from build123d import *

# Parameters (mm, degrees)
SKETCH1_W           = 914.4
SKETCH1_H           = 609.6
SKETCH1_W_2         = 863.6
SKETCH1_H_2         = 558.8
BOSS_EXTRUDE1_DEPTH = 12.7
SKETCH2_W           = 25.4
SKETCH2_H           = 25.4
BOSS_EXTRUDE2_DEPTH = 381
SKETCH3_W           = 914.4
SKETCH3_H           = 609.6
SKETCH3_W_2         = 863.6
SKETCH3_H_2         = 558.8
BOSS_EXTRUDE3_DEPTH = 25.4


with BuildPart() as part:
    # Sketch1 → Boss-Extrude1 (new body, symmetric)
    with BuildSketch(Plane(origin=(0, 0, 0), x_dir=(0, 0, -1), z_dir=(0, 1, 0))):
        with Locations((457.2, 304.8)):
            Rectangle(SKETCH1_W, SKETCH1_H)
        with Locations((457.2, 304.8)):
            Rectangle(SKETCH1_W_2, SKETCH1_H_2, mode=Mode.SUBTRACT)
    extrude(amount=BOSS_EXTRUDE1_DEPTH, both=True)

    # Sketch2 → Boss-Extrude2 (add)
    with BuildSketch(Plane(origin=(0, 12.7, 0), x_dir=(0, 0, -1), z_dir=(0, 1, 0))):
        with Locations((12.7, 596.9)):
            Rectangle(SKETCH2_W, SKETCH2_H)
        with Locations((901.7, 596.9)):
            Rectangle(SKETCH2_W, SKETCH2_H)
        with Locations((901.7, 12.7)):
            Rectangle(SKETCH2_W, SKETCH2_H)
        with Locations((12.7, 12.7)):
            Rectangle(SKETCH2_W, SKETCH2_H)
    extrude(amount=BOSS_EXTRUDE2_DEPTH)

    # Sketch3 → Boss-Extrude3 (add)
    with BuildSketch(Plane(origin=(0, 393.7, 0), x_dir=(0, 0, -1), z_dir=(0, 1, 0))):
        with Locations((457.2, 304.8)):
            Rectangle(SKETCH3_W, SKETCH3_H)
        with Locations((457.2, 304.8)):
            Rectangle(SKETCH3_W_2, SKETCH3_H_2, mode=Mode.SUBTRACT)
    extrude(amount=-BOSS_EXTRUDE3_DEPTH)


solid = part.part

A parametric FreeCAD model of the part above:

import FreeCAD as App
import Part
import Sketcher

V = App.Vector
Q = App.Units.Quantity

doc = App.newDocument("Part")
params = doc.addObject("Spreadsheet::Sheet", "Params")
for row, (alias, value) in enumerate([
    ("sketch1_width", "24 in"),
    ("sketch1_width2", "22 in"),
    ("sketch1_height", "36 in"),
    ("sketch1_height2", "34 in"),
    ("pad1_length", "1 in"),
    ("sketch2_width", "1 in"),
    ("pad2_length", "15 in"),
    ("sketch3_width", "24 in"),
    ("sketch3_width2", "22 in"),
    ("sketch3_height", "36 in"),
    ("sketch3_height2", "34 in"),
    ("pad3_length", "1 in"),
], start=1):
    params.set(f"A{row}", alias)
    params.set(f"B{row}", "=" + value)
    params.setAlias(f"B{row}", alias)

body = doc.addObject("PartDesign::Body", "Body")

sketch1 = body.newObject("Sketcher::SketchObject", "Sketch")
sketch1.AttachmentSupport = (doc.getObject("XZ_Plane"), [""])
sketch1.MapMode = "FlatFace"
sketch1.addGeometry(Part.LineSegment(V(-610, 0, 0), V(0, 0, 0)), False)
sketch1.addGeometry(Part.LineSegment(V(0, 0, 0), V(0, -914, 0)), False)
sketch1.addGeometry(Part.LineSegment(V(0, -914, 0), V(-610, -914, 0)), False)
sketch1.addGeometry(Part.LineSegment(V(-610, -914, 0), V(-610, 0, 0)), False)
sketch1.addGeometry(Part.LineSegment(V(-25, -889, 0), V(-25, -25, 0)), False)
sketch1.addGeometry(Part.LineSegment(V(-25, -25, 0), V(-584, -25, 0)), False)
sketch1.addGeometry(Part.LineSegment(V(-584, -25, 0), V(-584, -889, 0)), False)
sketch1.addGeometry(Part.LineSegment(V(-584, -889, 0), V(-25, -889, 0)), False)
sketch1.addConstraint(Sketcher.Constraint("Coincident", 0, 2, 1, 1))
sketch1.addConstraint(Sketcher.Constraint("Coincident", 1, 2, 2, 1))
sketch1.addConstraint(Sketcher.Constraint("Coincident", 2, 2, 3, 1))
sketch1.addConstraint(Sketcher.Constraint("Coincident", 3, 2, 0, 1))
sketch1.addConstraint(Sketcher.Constraint("Coincident", 4, 2, 5, 1))
sketch1.addConstraint(Sketcher.Constraint("Coincident", 5, 2, 6, 1))
sketch1.addConstraint(Sketcher.Constraint("Coincident", 6, 2, 7, 1))
sketch1.addConstraint(Sketcher.Constraint("Coincident", 7, 2, 4, 1))
sketch1.addConstraint(Sketcher.Constraint("Horizontal", 0))
sketch1.addConstraint(Sketcher.Constraint("Vertical", 1))
sketch1.addConstraint(Sketcher.Constraint("Horizontal", 2))
sketch1.addConstraint(Sketcher.Constraint("Vertical", 3))
sketch1.addConstraint(Sketcher.Constraint("Vertical", 4))
sketch1.addConstraint(Sketcher.Constraint("Horizontal", 5))
sketch1.addConstraint(Sketcher.Constraint("Vertical", 6))
sketch1.addConstraint(Sketcher.Constraint("Horizontal", 7))
sketch1.addConstraint(Sketcher.Constraint("Coincident", 0, 2, -1, 1))
sketch1.addConstraint(Sketcher.Constraint("DistanceX", 0, 1, 0, 2, Q("24 in")))
sketch1.addConstraint(Sketcher.Constraint("DistanceX", 5, 2, 5, 1, Q("22 in")))
sketch1.addConstraint(Sketcher.Constraint("DistanceY", 1, 2, 1, 1, Q("36 in")))
sketch1.addConstraint(Sketcher.Constraint("DistanceY", 4, 1, 4, 2, Q("34 in")))
sketch1.addConstraint(Sketcher.Constraint("DistanceX", 4, 2, -1, 1, Q("1 in")))
sketch1.addConstraint(Sketcher.Constraint("DistanceY", 4, 2, -1, 1, Q("1 in")))
sketch1.setExpression("Constraints[17]", "Params.sketch1_width")
sketch1.setExpression("Constraints[18]", "Params.sketch1_width2")
sketch1.setExpression("Constraints[19]", "Params.sketch1_height")
sketch1.setExpression("Constraints[20]", "Params.sketch1_height2")
pad1 = body.newObject("PartDesign::Pad", "Pad")
pad1.Profile = sketch1
pad1.setExpression("Length", "Params.pad1_length")
pad1.Midplane = True

sketch2 = body.newObject("Sketcher::SketchObject", "Sketch001")
sketch2.AttachmentSupport = (doc.getObject("XZ_Plane"), [""])
sketch2.MapMode = "FlatFace"
sketch2.AttachmentOffset = App.Placement(V(0, 0, -0.5 * 25.4), App.Rotation())
sketch2.addGeometry(Part.LineSegment(V(-610, 0, 0), V(-584, 0, 0)), False)
sketch2.addGeometry(Part.LineSegment(V(-584, 0, 0), V(-584, -25, 0)), False)
sketch2.addGeometry(Part.LineSegment(V(-584, -25, 0), V(-610, -25, 0)), False)
sketch2.addGeometry(Part.LineSegment(V(-610, -25, 0), V(-610, 0, 0)), False)
sketch2.addGeometry(Part.LineSegment(V(-610, -889, 0), V(-584, -889, 0)), False)
sketch2.addGeometry(Part.LineSegment(V(-584, -889, 0), V(-584, -914, 0)), False)
sketch2.addGeometry(Part.LineSegment(V(-584, -914, 0), V(-610, -914, 0)), False)
sketch2.addGeometry(Part.LineSegment(V(-610, -914, 0), V(-610, -889, 0)), False)
sketch2.addGeometry(Part.LineSegment(V(-25, -889, 0), V(0, -889, 0)), False)
sketch2.addGeometry(Part.LineSegment(V(0, -889, 0), V(0, -914, 0)), False)
sketch2.addGeometry(Part.LineSegment(V(0, -914, 0), V(-25, -914, 0)), False)
sketch2.addGeometry(Part.LineSegment(V(-25, -914, 0), V(-25, -889, 0)), False)
sketch2.addGeometry(Part.LineSegment(V(-25, 0, 0), V(0, 0, 0)), False)
sketch2.addGeometry(Part.LineSegment(V(0, 0, 0), V(0, -25, 0)), False)
sketch2.addGeometry(Part.LineSegment(V(0, -25, 0), V(-25, -25, 0)), False)
sketch2.addGeometry(Part.LineSegment(V(-25, -25, 0), V(-25, 0, 0)), False)
sketch2.addConstraint(Sketcher.Constraint("Coincident", 0, 2, 1, 1))
sketch2.addConstraint(Sketcher.Constraint("Coincident", 1, 2, 2, 1))
sketch2.addConstraint(Sketcher.Constraint("Coincident", 2, 2, 3, 1))
sketch2.addConstraint(Sketcher.Constraint("Coincident", 3, 2, 0, 1))
sketch2.addConstraint(Sketcher.Constraint("Coincident", 4, 2, 5, 1))
sketch2.addConstraint(Sketcher.Constraint("Coincident", 5, 2, 6, 1))
sketch2.addConstraint(Sketcher.Constraint("Coincident", 6, 2, 7, 1))
sketch2.addConstraint(Sketcher.Constraint("Coincident", 7, 2, 4, 1))
sketch2.addConstraint(Sketcher.Constraint("Coincident", 8, 2, 9, 1))
sketch2.addConstraint(Sketcher.Constraint("Coincident", 9, 2, 10, 1))
sketch2.addConstraint(Sketcher.Constraint("Coincident", 10, 2, 11, 1))
sketch2.addConstraint(Sketcher.Constraint("Coincident", 11, 2, 8, 1))
sketch2.addConstraint(Sketcher.Constraint("Coincident", 12, 2, 13, 1))
sketch2.addConstraint(Sketcher.Constraint("Coincident", 13, 2, 14, 1))
sketch2.addConstraint(Sketcher.Constraint("Coincident", 14, 2, 15, 1))
sketch2.addConstraint(Sketcher.Constraint("Coincident", 15, 2, 12, 1))
sketch2.addConstraint(Sketcher.Constraint("Horizontal", 0))
sketch2.addConstraint(Sketcher.Constraint("Vertical", 1))
sketch2.addConstraint(Sketcher.Constraint("Horizontal", 2))
sketch2.addConstraint(Sketcher.Constraint("Vertical", 3))
sketch2.addConstraint(Sketcher.Constraint("Horizontal", 4))
sketch2.addConstraint(Sketcher.Constraint("Vertical", 5))
sketch2.addConstraint(Sketcher.Constraint("Horizontal", 6))
sketch2.addConstraint(Sketcher.Constraint("Vertical", 7))
sketch2.addConstraint(Sketcher.Constraint("Horizontal", 8))
sketch2.addConstraint(Sketcher.Constraint("Vertical", 9))
sketch2.addConstraint(Sketcher.Constraint("Horizontal", 10))
sketch2.addConstraint(Sketcher.Constraint("Vertical", 11))
sketch2.addConstraint(Sketcher.Constraint("Horizontal", 12))
sketch2.addConstraint(Sketcher.Constraint("Vertical", 13))
sketch2.addConstraint(Sketcher.Constraint("Horizontal", 14))
sketch2.addConstraint(Sketcher.Constraint("Vertical", 15))
sketch2.addConstraint(Sketcher.Constraint("Coincident", 12, 2, -1, 1))
sketch2.addConstraint(Sketcher.Constraint("PointOnObject", 0, 2, -1))
sketch2.addConstraint(Sketcher.Constraint("PointOnObject", 8, 2, -2))
sketch2.addConstraint(Sketcher.Constraint("Horizontal", 7, 2, 8, 2))
sketch2.addConstraint(Sketcher.Constraint("Horizontal", 6, 2, 9, 2))
sketch2.addConstraint(Sketcher.Constraint("Horizontal", 2, 2, 13, 2))
sketch2.addConstraint(Sketcher.Constraint("Vertical", 1, 2, 4, 2))
sketch2.addConstraint(Sketcher.Constraint("Vertical", 3, 2, 6, 2))
sketch2.addConstraint(Sketcher.Constraint("Vertical", 11, 2, 14, 2))
sketch2.addConstraint(Sketcher.Constraint("Equal", 6, 8))
sketch2.addConstraint(Sketcher.Constraint("Equal", 14, 1))
sketch2.addConstraint(Sketcher.Constraint("Equal", 3, 5))
sketch2.addConstraint(Sketcher.Constraint("DistanceX", 0, 1, 0, 2, Q("1 in")))
sketch2.addConstraint(Sketcher.Constraint("DistanceX", 0, 2, -1, 1, Q("23 in")))
sketch2.addConstraint(Sketcher.Constraint("DistanceY", 4, 2, -1, 1, Q("35 in")))
sketch2.setExpression("Constraints[44]", "Params.sketch2_width")
pad2 = body.newObject("PartDesign::Pad", "Pad001")
pad2.Profile = sketch2
pad2.setExpression("Length", "Params.pad2_length")
pad2.Reversed = True

sketch3 = body.newObject("Sketcher::SketchObject", "Sketch002")
sketch3.AttachmentSupport = (doc.getObject("XZ_Plane"), [""])
sketch3.MapMode = "FlatFace"
sketch3.AttachmentOffset = App.Placement(V(0, 0, -15.5 * 25.4), App.Rotation())
sketch3.addGeometry(Part.LineSegment(V(-610, 0, 0), V(0, 0, 0)), False)
sketch3.addGeometry(Part.LineSegment(V(0, 0, 0), V(0, -914, 0)), False)
sketch3.addGeometry(Part.LineSegment(V(0, -914, 0), V(-610, -914, 0)), False)
sketch3.addGeometry(Part.LineSegment(V(-610, -914, 0), V(-610, 0, 0)), False)
sketch3.addGeometry(Part.LineSegment(V(-25, -889, 0), V(-25, -25, 0)), False)
sketch3.addGeometry(Part.LineSegment(V(-25, -25, 0), V(-584, -25, 0)), False)
sketch3.addGeometry(Part.LineSegment(V(-584, -25, 0), V(-584, -889, 0)), False)
sketch3.addGeometry(Part.LineSegment(V(-584, -889, 0), V(-25, -889, 0)), False)
sketch3.addConstraint(Sketcher.Constraint("Coincident", 0, 2, 1, 1))
sketch3.addConstraint(Sketcher.Constraint("Coincident", 1, 2, 2, 1))
sketch3.addConstraint(Sketcher.Constraint("Coincident", 2, 2, 3, 1))
sketch3.addConstraint(Sketcher.Constraint("Coincident", 3, 2, 0, 1))
sketch3.addConstraint(Sketcher.Constraint("Coincident", 4, 2, 5, 1))
sketch3.addConstraint(Sketcher.Constraint("Coincident", 5, 2, 6, 1))
sketch3.addConstraint(Sketcher.Constraint("Coincident", 6, 2, 7, 1))
sketch3.addConstraint(Sketcher.Constraint("Coincident", 7, 2, 4, 1))
sketch3.addConstraint(Sketcher.Constraint("Horizontal", 0))
sketch3.addConstraint(Sketcher.Constraint("Vertical", 1))
sketch3.addConstraint(Sketcher.Constraint("Horizontal", 2))
sketch3.addConstraint(Sketcher.Constraint("Vertical", 3))
sketch3.addConstraint(Sketcher.Constraint("Vertical", 4))
sketch3.addConstraint(Sketcher.Constraint("Horizontal", 5))
sketch3.addConstraint(Sketcher.Constraint("Vertical", 6))
sketch3.addConstraint(Sketcher.Constraint("Horizontal", 7))
sketch3.addConstraint(Sketcher.Constraint("Coincident", 0, 2, -1, 1))
sketch3.addConstraint(Sketcher.Constraint("DistanceX", 0, 1, 0, 2, Q("24 in")))
sketch3.addConstraint(Sketcher.Constraint("DistanceX", 5, 2, 5, 1, Q("22 in")))
sketch3.addConstraint(Sketcher.Constraint("DistanceY", 1, 2, 1, 1, Q("36 in")))
sketch3.addConstraint(Sketcher.Constraint("DistanceY", 4, 1, 4, 2, Q("34 in")))
sketch3.addConstraint(Sketcher.Constraint("DistanceX", 4, 2, -1, 1, Q("1 in")))
sketch3.addConstraint(Sketcher.Constraint("DistanceY", 4, 2, -1, 1, Q("1 in")))
sketch3.setExpression("Constraints[17]", "Params.sketch3_width")
sketch3.setExpression("Constraints[18]", "Params.sketch3_width2")
sketch3.setExpression("Constraints[19]", "Params.sketch3_height")
sketch3.setExpression("Constraints[20]", "Params.sketch3_height2")
pad3 = body.newObject("PartDesign::Pad", "Pad002")
pad3.Profile = sketch3
pad3.setExpression("Length", "Params.pad3_length")

doc.recompute()
